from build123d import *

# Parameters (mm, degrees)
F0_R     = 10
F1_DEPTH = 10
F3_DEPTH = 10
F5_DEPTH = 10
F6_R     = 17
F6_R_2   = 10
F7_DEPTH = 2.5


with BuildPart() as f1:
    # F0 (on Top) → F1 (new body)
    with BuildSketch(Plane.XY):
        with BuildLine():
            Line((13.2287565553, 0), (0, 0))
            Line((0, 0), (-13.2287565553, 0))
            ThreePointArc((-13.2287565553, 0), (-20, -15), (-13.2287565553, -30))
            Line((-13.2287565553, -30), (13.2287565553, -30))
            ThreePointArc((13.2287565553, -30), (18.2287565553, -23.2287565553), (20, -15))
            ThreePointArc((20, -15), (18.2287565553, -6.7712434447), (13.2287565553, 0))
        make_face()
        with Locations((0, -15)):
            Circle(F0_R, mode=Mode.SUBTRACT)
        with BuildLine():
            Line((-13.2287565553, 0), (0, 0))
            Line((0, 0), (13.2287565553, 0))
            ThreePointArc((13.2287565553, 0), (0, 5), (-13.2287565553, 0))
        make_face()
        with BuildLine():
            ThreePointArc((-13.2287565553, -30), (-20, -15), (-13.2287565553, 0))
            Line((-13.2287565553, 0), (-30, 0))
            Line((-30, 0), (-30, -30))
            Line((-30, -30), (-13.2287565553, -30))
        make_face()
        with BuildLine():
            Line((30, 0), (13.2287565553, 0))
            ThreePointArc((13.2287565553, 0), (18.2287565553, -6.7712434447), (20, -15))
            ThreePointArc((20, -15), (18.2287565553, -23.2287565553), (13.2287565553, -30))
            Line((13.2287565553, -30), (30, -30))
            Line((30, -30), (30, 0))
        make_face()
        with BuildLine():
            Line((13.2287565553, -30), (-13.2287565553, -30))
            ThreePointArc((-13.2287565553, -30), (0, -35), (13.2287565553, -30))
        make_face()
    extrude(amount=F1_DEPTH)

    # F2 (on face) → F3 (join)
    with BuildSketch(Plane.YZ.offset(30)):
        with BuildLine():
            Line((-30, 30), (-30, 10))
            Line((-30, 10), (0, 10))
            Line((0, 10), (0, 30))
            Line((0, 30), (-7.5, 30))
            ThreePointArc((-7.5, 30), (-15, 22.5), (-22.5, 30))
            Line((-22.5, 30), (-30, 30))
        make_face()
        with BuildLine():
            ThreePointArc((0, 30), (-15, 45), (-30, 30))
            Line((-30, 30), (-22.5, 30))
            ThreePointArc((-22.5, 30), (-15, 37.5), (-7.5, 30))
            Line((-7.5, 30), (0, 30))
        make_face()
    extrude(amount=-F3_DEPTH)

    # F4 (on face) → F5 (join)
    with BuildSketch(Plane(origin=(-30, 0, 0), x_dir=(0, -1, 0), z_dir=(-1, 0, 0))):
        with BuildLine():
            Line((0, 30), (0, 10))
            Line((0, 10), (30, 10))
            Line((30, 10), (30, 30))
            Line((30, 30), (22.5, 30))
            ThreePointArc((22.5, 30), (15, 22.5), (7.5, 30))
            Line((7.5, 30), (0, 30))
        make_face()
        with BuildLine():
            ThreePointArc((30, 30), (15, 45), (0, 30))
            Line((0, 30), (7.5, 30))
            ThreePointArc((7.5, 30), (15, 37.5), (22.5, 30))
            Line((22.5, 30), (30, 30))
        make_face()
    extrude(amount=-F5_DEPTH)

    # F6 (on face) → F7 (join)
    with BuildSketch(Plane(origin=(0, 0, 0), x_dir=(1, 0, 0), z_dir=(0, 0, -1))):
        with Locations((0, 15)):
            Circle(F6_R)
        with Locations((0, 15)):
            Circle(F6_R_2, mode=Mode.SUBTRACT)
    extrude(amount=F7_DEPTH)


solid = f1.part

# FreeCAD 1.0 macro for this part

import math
import FreeCAD as App
import Part
import Sketcher
from FreeCAD import Vector
Q = App.Units.Quantity

doc = App.newDocument("Part")
body = doc.addObject("PartDesign::Body", "Body")

sketch1 = doc.addObject("Sketcher::SketchObject", "Sketch")
body.addObject(sketch1)
sketch1.AttachmentSupport = (doc.XY_Plane, [""])
sketch1.MapMode = "FlatFace"
sketch1.addGeometry([
    Part.ArcOfCircle(Part.Circle(Vector(0, -15, 0), Vector(0, 0, 1), 20), math.radians(48.590378), math.radians(131.409622)),
    Part.LineSegment(Vector(-13.228757, 0, 0), Vector(-30, 0, 0)),
    Part.LineSegment(Vector(-30, 0, 0), Vector(-30, -30, 0)),
    Part.LineSegment(Vector(-30, -30, 0), Vector(-13.228757, -30, 0)),
    Part.ArcOfCircle(Part.Circle(Vector(0, -15, 0), Vector(0, 0, 1), 20), math.radians(-131.409622), math.radians(-48.590378)),
    Part.LineSegment(Vector(13.228757, -30, 0), Vector(30, -30, 0)),
    Part.LineSegment(Vector(30, -30, 0), Vector(30, 0, 0)),
    Part.LineSegment(Vector(30, 0, 0), Vector(13.228757, 0, 0)),
    Part.Circle(Vector(0, -15, 0), Vector(0, 0, 1), 10),
], False)
sketch1.addConstraint([
    Sketcher.Constraint("Coincident", 0, 2, 1, 1),
    Sketcher.Constraint("Coincident", 1, 2, 2, 1),
    Sketcher.Constraint("Coincident", 2, 2, 3, 1),
    Sketcher.Constraint("Coincident", 3, 2, 4, 1),
    Sketcher.Constraint("Coincident", 4, 2, 5, 1),
    Sketcher.Constraint("Coincident", 5, 2, 6, 1),
    Sketcher.Constraint("Coincident", 6, 2, 7, 1),
    Sketcher.Constraint("Coincident", 7, 2, 0, 1),
    Sketcher.Constraint("Horizontal", 1),
    Sketcher.Constraint("Vertical", 2),
    Sketcher.Constraint("Horizontal", 3),
    Sketcher.Constraint("Horizontal", 5),
    Sketcher.Constraint("Vertical", 6),
    Sketcher.Constraint("Horizontal", 7),
    Sketcher.Constraint("Coincident", 4, 3, 0, 3),
    Sketcher.Constraint("Coincident", 8, 3, 0, 3),
    Sketcher.Constraint("Equal", 0, 4),
    Sketcher.Constraint("Symmetric", 1, 2, 6, 2, -1, 1),
    Sketcher.Constraint("Symmetric", 3, 2, 4, 2, -2),
    Sketcher.Constraint("PointOnObject", 0, 2, -1),
    Sketcher.Constraint("Vertical", 0, 2, 3, 2),
    Sketcher.Constraint("Diameter", 8, Q("20 mm")),
    Sketcher.Constraint("Radius", 0, Q("20 mm")),
    Sketcher.Constraint("DistanceY", 2, 2, 2, 1, Q("30 mm")),
    Sketcher.Constraint("DistanceX", 1, 2, -1, 1, Q("30 mm")),
])
pad1 = doc.addObject("PartDesign::Pad", "Pad")
body.addObject(pad1)
pad1.Profile = sketch1
pad1.Length = 10

sketch2 = doc.addObject("Sketcher::SketchObject", "Sketch001")
body.addObject(sketch2)
sketch2.AttachmentSupport = (doc.YZ_Plane, [""])
sketch2.MapMode = "FlatFace"
sketch2.AttachmentOffset = App.Placement(Vector(0, 0, 30), App.Rotation())
sketch2.addGeometry([
    Part.LineSegment(Vector(-30, 30, 0), Vector(-30, 10, 0)),
    Part.LineSegment(Vector(-30, 10, 0), Vector(0, 10, 0)),
    Part.LineSegment(Vector(0, 10, 0), Vector(0, 30, 0)),
    Part.ArcOfCircle(Part.Circle(Vector(-15, 30, 0), Vector(0, 0, 1), 15), math.radians(0), math.radians(180)),
    Part.Circle(Vector(-15, 30, 0), Vector(0, 0, 1), 7.5),
], False)
sketch2.addConstraint([
    Sketcher.Constraint("Coincident", 0, 2, 1, 1),
    Sketcher.Constraint("Coincident", 1, 2, 2, 1),
    Sketcher.Constraint("Tangent", 2, 2, 3, 1),
    Sketcher.Constraint("Tangent", 3, 2, 0, 1),
    Sketcher.Constraint("Vertical", 0),
    Sketcher.Constraint("Horizontal", 1),
    Sketcher.Constraint("Vertical", 2),
    Sketcher.Constraint("Coincident", 4, 3, 3, 3),
    Sketcher.Constraint("PointOnObject", 1, 2, -2),
    Sketcher.Constraint("Diameter", 4, Q("15 mm")),
    Sketcher.Constraint("Radius", 3, Q("15 mm")),
    Sketcher.Constraint("DistanceY", 0, 2, 0, 1, Q("20 mm")),
    Sketcher.Constraint("DistanceY", -1, 1, 3, 3, Q("30 mm")),
])
pad2 = doc.addObject("PartDesign::Pad", "Pad001")
body.addObject(pad2)
pad2.Profile = sketch2
pad2.Length = 10
pad2.Reversed = True

sketch3 = doc.addObject("Sketcher::SketchObject", "Sketch002")
body.addObject(sketch3)
sketch3.AttachmentSupport = (doc.YZ_Plane, [""])
sketch3.MapMode = "FlatFace"
sketch3.AttachmentOffset = App.Placement(Vector(0, 0, -30), App.Rotation())
sketch3.addGeometry([
    Part.LineSegment(Vector(0, 30, 0), Vector(0, 10, 0)),
    Part.LineSegment(Vector(0, 10, 0), Vector(-30, 10, 0)),
    Part.LineSegment(Vector(-30, 10, 0), Vector(-30, 30, 0)),
    Part.ArcOfCircle(Part.Circle(Vector(-15, 30, 0), Vector(0, 0, 1), 15), math.radians(0), math.radians(180)),
    Part.Circle(Vector(-15, 30, 0), Vector(0, 0, 1), 7.5),
], False)
sketch3.addConstraint([
    Sketcher.Constraint("Coincident", 0, 2, 1, 1),
    Sketcher.Constraint("Coincident", 1, 2, 2, 1),
    Sketcher.Constraint("Tangent", 2, 2, 3, 2),
    Sketcher.Constraint("Tangent", 3, 1, 0, 1),
    Sketcher.Constraint("Vertical", 0),
    Sketcher.Constraint("Horizontal", 1),
    Sketcher.Constraint("Vertical", 2),
    Sketcher.Constraint("Coincident", 4, 3, 3, 3),
    Sketcher.Constraint("PointOnObject", 0, 2, -2),
    Sketcher.Constraint("Diameter", 4, Q("15 mm")),
    Sketcher.Constraint("Radius", 3, Q("15 mm")),
    Sketcher.Constraint("DistanceY", 0, 2, 0, 1, Q("20 mm")),
    Sketcher.Constraint("DistanceY", -1, 1, 3, 3, Q("30 mm")),
])
pad3 = doc.addObject("PartDesign::Pad", "Pad002")
body.addObject(pad3)
pad3.Profile = sketch3
pad3.Length = 10

sketch4 = doc.addObject("Sketcher::SketchObject", "Sketch003")
body.addObject(sketch4)
sketch4.AttachmentSupport = (doc.XY_Plane, [""])
sketch4.MapMode = "FlatFace"
sketch4.addGeometry([
    Part.Circle(Vector(0, -15, 0), Vector(0, 0, 1), 17),
    Part.Circle(Vector(0, -15, 0), Vector(0, 0, 1), 10),
], False)
sketch4.addConstraint([
    Sketcher.Constraint("Coincident", 1, 3, 0, 3),
    Sketcher.Constraint("PointOnObject", 0, 3, -2),
    Sketcher.Constraint("Diameter", 0, Q("34 mm")),
    Sketcher.Constraint("Diameter", 1, Q("20 mm")),
    Sketcher.Constraint("DistanceY", 0, 3, -1, 1, Q("15 mm")),
])
pad4 = doc.addObject("PartDesign::Pad", "Pad003")
body.addObject(pad4)
pad4.Profile = sketch4
pad4.Length = 2.5
pad4.Reversed = True

doc.recompute()
